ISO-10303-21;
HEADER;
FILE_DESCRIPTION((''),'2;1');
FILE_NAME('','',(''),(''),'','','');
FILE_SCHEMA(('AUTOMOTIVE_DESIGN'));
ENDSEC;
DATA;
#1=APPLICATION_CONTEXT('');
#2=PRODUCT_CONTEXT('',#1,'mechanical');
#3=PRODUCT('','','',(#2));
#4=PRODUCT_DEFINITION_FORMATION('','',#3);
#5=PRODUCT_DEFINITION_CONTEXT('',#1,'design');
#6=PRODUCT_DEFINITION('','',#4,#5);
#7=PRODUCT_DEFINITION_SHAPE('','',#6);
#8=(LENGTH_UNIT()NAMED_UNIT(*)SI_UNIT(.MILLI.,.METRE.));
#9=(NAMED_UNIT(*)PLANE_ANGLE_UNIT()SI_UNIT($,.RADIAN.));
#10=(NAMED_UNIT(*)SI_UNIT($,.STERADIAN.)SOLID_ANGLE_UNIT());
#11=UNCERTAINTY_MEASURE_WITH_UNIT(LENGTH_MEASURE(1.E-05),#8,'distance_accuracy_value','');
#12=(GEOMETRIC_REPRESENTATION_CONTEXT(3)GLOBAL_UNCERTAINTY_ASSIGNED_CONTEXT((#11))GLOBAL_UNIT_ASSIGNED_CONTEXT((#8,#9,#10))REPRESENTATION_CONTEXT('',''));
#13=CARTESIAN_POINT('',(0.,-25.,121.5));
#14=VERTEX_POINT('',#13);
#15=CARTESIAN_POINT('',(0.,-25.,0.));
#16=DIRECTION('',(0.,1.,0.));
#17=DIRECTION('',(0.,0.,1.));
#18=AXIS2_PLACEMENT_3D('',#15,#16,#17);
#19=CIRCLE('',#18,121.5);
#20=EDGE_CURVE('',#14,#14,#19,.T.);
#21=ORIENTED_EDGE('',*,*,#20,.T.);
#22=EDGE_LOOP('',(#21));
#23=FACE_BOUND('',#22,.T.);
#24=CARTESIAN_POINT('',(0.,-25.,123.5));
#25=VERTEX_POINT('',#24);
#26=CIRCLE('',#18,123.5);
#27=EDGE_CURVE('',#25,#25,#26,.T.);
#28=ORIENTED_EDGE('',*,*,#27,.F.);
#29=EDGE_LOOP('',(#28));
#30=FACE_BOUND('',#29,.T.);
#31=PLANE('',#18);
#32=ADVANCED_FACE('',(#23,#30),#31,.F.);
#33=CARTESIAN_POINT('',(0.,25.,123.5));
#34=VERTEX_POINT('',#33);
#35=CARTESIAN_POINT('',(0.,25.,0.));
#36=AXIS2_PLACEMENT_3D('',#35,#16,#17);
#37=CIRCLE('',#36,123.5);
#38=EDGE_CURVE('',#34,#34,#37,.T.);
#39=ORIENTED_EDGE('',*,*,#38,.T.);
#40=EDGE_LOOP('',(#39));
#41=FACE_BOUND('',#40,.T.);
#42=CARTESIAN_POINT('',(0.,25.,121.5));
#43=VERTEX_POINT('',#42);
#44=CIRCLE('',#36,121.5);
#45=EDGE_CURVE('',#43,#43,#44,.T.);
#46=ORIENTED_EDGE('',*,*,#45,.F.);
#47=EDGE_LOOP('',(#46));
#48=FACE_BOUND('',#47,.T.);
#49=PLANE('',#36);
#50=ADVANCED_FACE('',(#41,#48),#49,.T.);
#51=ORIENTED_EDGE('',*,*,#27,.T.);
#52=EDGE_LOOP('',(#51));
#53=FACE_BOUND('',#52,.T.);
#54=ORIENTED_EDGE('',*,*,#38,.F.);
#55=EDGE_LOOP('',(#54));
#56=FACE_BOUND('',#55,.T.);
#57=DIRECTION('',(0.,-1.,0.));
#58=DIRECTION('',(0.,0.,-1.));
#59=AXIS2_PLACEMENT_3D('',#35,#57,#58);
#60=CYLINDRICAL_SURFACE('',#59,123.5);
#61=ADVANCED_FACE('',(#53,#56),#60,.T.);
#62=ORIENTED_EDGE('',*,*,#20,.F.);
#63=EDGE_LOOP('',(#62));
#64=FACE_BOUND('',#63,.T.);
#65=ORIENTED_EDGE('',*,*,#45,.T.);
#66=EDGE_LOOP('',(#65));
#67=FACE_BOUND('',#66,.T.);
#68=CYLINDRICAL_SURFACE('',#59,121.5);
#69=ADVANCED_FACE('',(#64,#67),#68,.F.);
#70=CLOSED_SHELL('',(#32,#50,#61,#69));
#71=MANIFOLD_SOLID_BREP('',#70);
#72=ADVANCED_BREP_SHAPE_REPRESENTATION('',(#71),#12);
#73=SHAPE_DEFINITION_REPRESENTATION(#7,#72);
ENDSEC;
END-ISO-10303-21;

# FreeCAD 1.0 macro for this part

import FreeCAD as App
import Part
import Sketcher
Q = App.Units.Quantity

doc = App.newDocument("Part")
body = doc.addObject("PartDesign::Body", "Body")

sketch1 = doc.addObject("Sketcher::SketchObject", "Sketch")
body.addObject(sketch1)
sketch1.AttachmentSupport = (doc.XZ_Plane, [""])
sketch1.MapMode = "FlatFace"
sketch1.addGeometry(Part.Circle(App.Vector(0, 0, 0), App.Vector(0, 0, 1), 124), False)
sketch1.addGeometry(Part.Circle(App.Vector(0, 0, 0), App.Vector(0, 0, 1), 122), False)
sketch1.addConstraint(Sketcher.Constraint("Coincident", 0, 3, -1, 1))
sketch1.addConstraint(Sketcher.Constraint("Coincident", 1, 3, -1, 1))
sketch1.addConstraint(Sketcher.Constraint("Diameter", 0, Q("247 mm")))
sketch1.addConstraint(Sketcher.Constraint("Diameter", 1, Q("243 mm")))
pad1 = doc.addObject("PartDesign::Pad", "Pad")
body.addObject(pad1)
pad1.Profile = sketch1
pad1.Length = 50
pad1.Midplane = True

doc.recompute()
